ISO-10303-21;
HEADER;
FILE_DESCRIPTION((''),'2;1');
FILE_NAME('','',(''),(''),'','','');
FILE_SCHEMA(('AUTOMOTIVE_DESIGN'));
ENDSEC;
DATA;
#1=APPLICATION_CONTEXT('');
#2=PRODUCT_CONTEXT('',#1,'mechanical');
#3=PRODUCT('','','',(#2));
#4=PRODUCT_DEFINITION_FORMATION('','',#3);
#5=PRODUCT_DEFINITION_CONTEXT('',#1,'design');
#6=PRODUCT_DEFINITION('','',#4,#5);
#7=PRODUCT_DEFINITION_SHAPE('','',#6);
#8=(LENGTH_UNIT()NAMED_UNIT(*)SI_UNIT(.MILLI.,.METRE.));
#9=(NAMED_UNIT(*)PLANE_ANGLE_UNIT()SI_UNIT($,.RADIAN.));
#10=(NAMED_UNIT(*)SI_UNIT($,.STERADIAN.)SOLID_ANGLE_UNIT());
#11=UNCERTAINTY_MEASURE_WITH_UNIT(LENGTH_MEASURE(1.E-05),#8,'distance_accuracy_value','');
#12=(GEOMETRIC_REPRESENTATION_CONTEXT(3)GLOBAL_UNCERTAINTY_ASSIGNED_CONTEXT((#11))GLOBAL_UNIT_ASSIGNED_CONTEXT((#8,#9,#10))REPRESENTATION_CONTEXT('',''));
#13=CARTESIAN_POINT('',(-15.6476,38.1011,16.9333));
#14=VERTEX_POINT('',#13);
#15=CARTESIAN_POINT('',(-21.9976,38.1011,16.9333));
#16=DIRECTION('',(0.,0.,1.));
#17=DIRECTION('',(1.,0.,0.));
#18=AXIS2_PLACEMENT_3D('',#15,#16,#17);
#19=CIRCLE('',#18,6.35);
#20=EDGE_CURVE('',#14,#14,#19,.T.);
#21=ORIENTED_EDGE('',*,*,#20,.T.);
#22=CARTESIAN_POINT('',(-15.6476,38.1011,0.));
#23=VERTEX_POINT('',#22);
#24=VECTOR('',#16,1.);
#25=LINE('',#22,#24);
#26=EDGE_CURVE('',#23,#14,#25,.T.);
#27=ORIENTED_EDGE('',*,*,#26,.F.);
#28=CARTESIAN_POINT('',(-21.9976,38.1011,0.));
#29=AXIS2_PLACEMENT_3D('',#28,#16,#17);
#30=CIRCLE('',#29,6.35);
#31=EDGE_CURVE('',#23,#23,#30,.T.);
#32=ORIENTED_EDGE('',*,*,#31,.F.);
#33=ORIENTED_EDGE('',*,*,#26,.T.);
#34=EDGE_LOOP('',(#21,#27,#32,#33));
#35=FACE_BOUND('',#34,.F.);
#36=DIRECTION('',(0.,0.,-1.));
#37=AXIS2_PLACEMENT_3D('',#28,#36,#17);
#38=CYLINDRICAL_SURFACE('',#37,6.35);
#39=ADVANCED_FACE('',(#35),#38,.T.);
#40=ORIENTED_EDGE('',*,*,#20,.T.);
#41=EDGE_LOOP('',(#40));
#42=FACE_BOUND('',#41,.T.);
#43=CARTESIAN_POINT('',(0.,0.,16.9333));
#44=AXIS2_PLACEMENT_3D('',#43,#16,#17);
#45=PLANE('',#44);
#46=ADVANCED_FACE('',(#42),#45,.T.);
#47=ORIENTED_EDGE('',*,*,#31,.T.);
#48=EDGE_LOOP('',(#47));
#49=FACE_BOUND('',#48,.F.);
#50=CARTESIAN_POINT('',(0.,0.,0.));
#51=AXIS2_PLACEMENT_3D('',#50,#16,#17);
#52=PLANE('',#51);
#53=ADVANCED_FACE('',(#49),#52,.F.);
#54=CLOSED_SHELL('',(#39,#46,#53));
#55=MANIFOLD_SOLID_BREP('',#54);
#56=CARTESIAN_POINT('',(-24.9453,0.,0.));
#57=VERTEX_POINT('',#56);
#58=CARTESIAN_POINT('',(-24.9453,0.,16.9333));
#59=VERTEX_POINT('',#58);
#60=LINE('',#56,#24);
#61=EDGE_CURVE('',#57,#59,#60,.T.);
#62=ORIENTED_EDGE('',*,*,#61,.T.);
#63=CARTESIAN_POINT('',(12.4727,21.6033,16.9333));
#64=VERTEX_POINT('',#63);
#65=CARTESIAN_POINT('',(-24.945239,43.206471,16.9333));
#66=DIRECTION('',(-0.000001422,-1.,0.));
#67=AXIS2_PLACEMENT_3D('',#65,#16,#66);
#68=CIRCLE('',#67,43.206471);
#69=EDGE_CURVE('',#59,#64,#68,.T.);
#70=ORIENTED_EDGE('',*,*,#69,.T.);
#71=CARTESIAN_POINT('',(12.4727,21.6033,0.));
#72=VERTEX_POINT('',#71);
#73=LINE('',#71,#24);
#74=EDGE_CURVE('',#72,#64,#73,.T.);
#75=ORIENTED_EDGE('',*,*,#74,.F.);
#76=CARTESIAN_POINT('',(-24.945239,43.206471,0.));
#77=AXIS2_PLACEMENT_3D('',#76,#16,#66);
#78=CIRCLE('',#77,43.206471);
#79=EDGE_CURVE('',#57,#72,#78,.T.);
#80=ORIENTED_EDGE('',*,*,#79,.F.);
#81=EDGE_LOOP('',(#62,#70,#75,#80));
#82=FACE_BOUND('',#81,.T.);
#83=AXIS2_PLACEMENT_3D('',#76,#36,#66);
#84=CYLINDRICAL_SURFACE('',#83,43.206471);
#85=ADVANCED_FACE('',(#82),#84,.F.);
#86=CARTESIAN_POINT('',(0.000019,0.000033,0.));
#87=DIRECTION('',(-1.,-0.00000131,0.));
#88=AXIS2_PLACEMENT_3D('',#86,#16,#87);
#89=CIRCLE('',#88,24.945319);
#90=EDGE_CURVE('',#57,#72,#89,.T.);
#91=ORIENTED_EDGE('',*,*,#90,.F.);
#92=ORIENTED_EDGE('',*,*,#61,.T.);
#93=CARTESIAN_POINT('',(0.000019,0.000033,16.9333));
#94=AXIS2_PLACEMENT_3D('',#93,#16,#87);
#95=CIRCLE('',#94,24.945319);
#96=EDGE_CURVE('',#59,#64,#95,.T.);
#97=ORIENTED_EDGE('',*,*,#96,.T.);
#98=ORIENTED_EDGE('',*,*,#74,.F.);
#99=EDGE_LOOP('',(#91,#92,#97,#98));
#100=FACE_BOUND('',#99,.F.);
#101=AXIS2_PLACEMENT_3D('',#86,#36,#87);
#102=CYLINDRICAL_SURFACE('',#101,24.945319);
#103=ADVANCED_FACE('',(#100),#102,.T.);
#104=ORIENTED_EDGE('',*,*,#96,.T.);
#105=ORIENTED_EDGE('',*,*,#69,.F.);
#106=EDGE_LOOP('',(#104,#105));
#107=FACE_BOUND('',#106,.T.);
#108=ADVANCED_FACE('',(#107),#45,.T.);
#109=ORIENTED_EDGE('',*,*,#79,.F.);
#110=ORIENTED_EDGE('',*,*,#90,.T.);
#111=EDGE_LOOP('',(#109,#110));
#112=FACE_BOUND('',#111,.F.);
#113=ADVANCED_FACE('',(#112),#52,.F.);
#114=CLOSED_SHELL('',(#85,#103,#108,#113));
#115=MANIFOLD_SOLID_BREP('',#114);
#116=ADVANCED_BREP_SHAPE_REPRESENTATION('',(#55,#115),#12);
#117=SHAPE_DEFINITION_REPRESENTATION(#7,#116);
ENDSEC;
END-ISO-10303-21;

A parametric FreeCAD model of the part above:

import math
import FreeCAD as App
import Part
import Sketcher
Q = App.Units.Quantity

doc = App.newDocument("Part")
body = doc.addObject("PartDesign::Body", "Body")
body.AllowCompound = True

sketch1 = body.newObject("Sketcher::SketchObject", "Sketch")
sketch1.AttachmentSupport = (doc.getObject("XY_Plane"), [""])
sketch1.MapMode = "FlatFace"
sketch1.addGeometry(Part.ArcOfCircle(Part.Circle(App.Vector(-25, 43, 0), App.Vector(0, 0, 1), 43), math.radians(-90), math.radians(-30)), False)
sketch1.addGeometry(Part.ArcOfCircle(Part.Circle(App.Vector(0, 0, 0), App.Vector(0, 0, 1), 25), math.radians(180), math.radians(420)), False)
sketch1.addGeometry(Part.Circle(App.Vector(-22, 38, 0), App.Vector(0, 0, 1), 6), False)
sketch1.addConstraint(Sketcher.Constraint("Coincident", 0, 1, 1, 1))
sketch1.addConstraint(Sketcher.Constraint("Coincident", 1, 2, 0, 2))
sketch1.addConstraint(Sketcher.Constraint("Coincident", 1, 3, -1, 1))
sketch1.addConstraint(Sketcher.Constraint("PointOnObject", 0, 1, -1))
sketch1.addConstraint(Sketcher.Constraint("Diameter", 2, Q("0.5 in")))
sketch1.addConstraint(Sketcher.Constraint("Radius", 1, Q("0.9821 in")))
sketch1.addConstraint(Sketcher.Constraint("DistanceX", 0, 3, -1, 1, Q("0.9821 in")))
sketch1.addConstraint(Sketcher.Constraint("Radius", 0, Q("43.2067 mm")))
sketch1.addConstraint(Sketcher.Constraint("DistanceY", 2, 3, 0, 3, Q("0.201 in")))
sketch1.addConstraint(Sketcher.Constraint("DistanceX", 2, 3, 1, 2, Q("1.3571 in")))
pad1 = body.newObject("PartDesign::Pad", "Pad")
pad1.Profile = sketch1
pad1.Length = 16.9333

doc.recompute()
